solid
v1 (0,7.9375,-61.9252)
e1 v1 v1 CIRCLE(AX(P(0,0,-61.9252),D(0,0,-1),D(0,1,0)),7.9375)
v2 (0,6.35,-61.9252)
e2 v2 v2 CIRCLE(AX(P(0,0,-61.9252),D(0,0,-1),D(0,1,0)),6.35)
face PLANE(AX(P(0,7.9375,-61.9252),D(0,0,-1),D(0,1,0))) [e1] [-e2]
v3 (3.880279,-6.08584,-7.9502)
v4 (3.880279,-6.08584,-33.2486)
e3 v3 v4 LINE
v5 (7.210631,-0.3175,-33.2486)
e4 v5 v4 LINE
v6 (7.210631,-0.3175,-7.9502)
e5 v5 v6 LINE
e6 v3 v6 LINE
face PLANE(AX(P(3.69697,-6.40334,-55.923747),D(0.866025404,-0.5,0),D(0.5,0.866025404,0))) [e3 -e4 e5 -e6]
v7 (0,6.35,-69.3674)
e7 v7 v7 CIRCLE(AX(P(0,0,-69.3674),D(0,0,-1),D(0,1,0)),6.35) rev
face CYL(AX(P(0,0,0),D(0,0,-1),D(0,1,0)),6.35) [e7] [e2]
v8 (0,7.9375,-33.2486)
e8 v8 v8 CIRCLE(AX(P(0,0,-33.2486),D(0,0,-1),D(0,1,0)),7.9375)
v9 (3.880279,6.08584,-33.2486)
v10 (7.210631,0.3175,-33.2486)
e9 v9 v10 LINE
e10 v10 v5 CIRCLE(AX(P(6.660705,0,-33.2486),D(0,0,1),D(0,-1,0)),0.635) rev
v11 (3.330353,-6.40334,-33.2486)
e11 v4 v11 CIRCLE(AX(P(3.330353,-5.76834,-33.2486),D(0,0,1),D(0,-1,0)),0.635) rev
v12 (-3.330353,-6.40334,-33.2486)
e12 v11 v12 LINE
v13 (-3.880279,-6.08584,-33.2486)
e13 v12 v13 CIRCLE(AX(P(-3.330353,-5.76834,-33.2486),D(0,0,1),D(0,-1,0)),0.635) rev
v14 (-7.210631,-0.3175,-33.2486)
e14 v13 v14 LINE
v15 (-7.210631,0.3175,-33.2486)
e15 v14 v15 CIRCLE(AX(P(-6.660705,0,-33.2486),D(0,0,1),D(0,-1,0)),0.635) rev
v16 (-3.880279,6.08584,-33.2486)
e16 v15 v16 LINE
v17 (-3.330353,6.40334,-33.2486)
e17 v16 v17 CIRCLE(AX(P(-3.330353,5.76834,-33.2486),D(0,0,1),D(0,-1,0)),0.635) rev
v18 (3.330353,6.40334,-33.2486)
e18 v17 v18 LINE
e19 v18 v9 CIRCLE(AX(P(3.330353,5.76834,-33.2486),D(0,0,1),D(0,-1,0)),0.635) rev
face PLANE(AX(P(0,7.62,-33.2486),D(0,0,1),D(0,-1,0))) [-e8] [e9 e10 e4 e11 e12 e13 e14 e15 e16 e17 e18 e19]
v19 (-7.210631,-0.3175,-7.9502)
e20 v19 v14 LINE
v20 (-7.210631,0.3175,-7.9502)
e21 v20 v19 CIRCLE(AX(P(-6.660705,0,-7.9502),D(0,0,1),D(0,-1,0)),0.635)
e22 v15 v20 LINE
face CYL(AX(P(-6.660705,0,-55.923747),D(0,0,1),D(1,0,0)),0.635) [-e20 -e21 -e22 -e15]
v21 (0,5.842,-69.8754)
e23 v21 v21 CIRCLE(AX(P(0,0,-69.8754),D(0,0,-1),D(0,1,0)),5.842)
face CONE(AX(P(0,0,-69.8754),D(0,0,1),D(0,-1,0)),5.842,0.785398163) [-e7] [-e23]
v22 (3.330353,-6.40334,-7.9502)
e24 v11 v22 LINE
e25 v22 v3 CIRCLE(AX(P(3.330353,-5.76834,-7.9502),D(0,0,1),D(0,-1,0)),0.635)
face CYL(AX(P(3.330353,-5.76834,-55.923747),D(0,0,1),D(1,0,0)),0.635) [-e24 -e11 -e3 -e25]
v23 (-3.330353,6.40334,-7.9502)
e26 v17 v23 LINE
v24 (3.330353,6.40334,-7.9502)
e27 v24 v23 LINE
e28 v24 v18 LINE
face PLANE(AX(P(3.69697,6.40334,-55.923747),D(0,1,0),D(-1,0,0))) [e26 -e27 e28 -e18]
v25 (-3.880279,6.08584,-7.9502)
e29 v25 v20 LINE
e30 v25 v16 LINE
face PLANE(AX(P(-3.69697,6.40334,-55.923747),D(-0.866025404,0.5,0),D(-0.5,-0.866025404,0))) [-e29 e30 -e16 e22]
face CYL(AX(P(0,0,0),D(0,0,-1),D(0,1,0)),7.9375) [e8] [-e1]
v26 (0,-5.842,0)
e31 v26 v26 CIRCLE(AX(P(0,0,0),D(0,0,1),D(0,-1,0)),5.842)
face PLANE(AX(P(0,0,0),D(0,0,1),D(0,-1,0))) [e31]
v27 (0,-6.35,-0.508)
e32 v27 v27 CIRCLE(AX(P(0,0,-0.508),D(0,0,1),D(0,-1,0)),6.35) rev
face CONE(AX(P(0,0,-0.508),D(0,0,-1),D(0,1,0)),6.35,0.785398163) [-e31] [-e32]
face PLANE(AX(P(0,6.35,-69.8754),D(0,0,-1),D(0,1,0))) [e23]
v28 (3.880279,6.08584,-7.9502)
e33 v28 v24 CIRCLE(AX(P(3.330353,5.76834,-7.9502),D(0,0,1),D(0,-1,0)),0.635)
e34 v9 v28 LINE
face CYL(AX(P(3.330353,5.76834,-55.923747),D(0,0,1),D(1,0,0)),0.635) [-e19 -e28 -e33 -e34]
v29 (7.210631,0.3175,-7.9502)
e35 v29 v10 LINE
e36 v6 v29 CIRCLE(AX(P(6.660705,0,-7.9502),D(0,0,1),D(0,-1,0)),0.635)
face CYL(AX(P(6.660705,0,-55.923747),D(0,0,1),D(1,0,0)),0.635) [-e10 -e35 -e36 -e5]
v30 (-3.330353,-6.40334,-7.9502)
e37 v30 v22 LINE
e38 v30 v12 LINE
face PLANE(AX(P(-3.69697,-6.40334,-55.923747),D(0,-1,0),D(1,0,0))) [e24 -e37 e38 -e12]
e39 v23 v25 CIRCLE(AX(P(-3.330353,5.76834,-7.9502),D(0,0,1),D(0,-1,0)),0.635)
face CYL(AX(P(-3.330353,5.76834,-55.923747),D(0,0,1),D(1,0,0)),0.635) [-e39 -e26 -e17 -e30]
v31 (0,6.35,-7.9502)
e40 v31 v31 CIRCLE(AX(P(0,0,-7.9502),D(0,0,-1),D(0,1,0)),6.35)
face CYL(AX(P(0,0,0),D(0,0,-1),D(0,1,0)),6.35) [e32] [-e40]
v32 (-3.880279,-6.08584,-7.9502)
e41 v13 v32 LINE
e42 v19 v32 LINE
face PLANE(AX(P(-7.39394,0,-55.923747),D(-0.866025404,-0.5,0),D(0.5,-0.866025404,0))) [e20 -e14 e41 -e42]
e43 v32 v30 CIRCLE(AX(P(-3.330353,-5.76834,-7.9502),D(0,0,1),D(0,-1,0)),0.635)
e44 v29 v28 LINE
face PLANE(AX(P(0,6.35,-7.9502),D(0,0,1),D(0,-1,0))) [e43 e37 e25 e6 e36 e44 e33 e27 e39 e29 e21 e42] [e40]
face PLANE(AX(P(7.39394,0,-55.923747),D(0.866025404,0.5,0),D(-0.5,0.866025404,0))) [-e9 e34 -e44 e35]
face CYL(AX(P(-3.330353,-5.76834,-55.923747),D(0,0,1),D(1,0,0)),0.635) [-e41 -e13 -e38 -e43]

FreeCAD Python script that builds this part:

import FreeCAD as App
import Part
import Sketcher
from FreeCAD import Vector
Q = App.Units.Quantity


def edges_at(feature, points):
    """Names of the edges that pass closest to the given points."""
    edges = feature.Shape.Edges
    near = lambda p: min(range(len(edges)), key=lambda i: edges[i].distToShape(Part.Vertex(*p))[0])
    return sorted({f"Edge{near(p) + 1}" for p in points})


def add_polygon(sketch, points):
    """Adds a closed chain of lines whose ends are joined by coincident constraints."""
    first, n = sketch.GeometryCount, len(points)
    for a, b in zip(points, points[1:] + points[:1]):
        sketch.addGeometry(Part.LineSegment(App.Vector(*a, 0), App.Vector(*b, 0)), False)
    for i in range(n):
        sketch.addConstraint(Sketcher.Constraint("Coincident", first + i, 2, first + (i + 1) % n, 1))

doc = App.newDocument("Part")
body = doc.addObject("PartDesign::Body", "Body")

sketch1 = body.newObject("Sketcher::SketchObject", "Sketch")
sketch1.AttachmentSupport = (doc.getObject("YZ_Plane"), [""])
sketch1.MapMode = "FlatFace"
add_polygon(sketch1, [(6.35, 0), (0, 0), (0, -69.88), (6.35, -69.88), (6.35, -61.93), (7.94, -61.93), (7.94, -33.25), (7.62, -33.25), (7.62, -7.95), (6.35, -7.95)])
sketch1.addConstraint([
    Sketcher.Constraint("Horizontal", 0),
    Sketcher.Constraint("Vertical", 1),
    Sketcher.Constraint("Horizontal", 2),
    Sketcher.Constraint("Vertical", 3),
    Sketcher.Constraint("Horizontal", 4),
    Sketcher.Constraint("Vertical", 5),
    Sketcher.Constraint("Horizontal", 6),
    Sketcher.Constraint("Vertical", 7),
    Sketcher.Constraint("Horizontal", 8),
    Sketcher.Constraint("Vertical", 9),
    Sketcher.Constraint("Coincident", 0, 2, -1, 1),
    Sketcher.Constraint("Vertical", 3, 2, 8, 2),
    Sketcher.Constraint("Equal", 3, 9),
    Sketcher.Constraint("DistanceX", 0, 2, 0, 1, Q("0.25 in")),
    Sketcher.Constraint("DistanceX", 8, 2, 8, 1, Q("0.05 in")),
    Sketcher.Constraint("DistanceX", 4, 1, 4, 2, Q("0.0625 in")),
    Sketcher.Constraint("DistanceY", 1, 2, 1, 1, Q("2.751 in")),
    Sketcher.Constraint("DistanceY", 3, 1, 3, 2, Q("0.313 in")),
    Sketcher.Constraint("DistanceY", 5, 1, 5, 2, Q("1.129 in")),
])
revolution = body.newObject("PartDesign::Revolution", "Revolution")
revolution.Profile = sketch1
revolution.ReferenceAxis = (sketch1, ["V_Axis"])
revolution.Angle = 360

sketch2 = body.newObject("Sketcher::SketchObject", "Sketch001")
sketch2.AttachmentSupport = (doc.getObject("XY_Plane"), [""])
sketch2.MapMode = "FlatFace"
sketch2.AttachmentOffset = App.Placement(Vector(0, 0, -0.313 * 25.4), App.Rotation())
add_polygon(sketch2, [(-16, 16), (-16, -16), (16, -16), (16, 16)])
add_polygon(sketch2, [(-4, 6), (4, 6), (7, 0), (4, -6), (-4, -6), (-7, 0)])
sketch2.addConstraint([
    Sketcher.Constraint("Vertical", 0),
    Sketcher.Constraint("Horizontal", 1),
    Sketcher.Constraint("Vertical", 2),
    Sketcher.Constraint("Horizontal", 3),
    Sketcher.Constraint("Horizontal", 4),
    Sketcher.Constraint("Horizontal", 7),
    Sketcher.Constraint("Symmetric", 4, 2, 7, 2, -1, 1),
    Sketcher.Constraint("Symmetric", 5, 2, 8, 2, -1, 1),
    Sketcher.Constraint("PointOnObject", 5, 2, -1),
    Sketcher.Constraint("Parallel", 6, 9),
    Sketcher.Constraint("Vertical", 4, 2, 6, 2),
    Sketcher.Constraint("Angle", 5, Q("-60 deg")),
    Sketcher.Constraint("DistanceX", 4, 1, 4, 2, Q("0.2911 in")),
    Sketcher.Constraint("Distance", 5, Q("0.2911 in")),
    Sketcher.Constraint("DistanceX", 1, 1, 1, 2, Q("32.552 mm")),
    Sketcher.Constraint("DistanceY", 0, 2, 0, 1, Q("32.553 mm")),
    Sketcher.Constraint("DistanceX", 0, 2, -1, 1, Q("16.276 mm")),
    Sketcher.Constraint("DistanceY", 0, 2, -1, 1, Q("16.276 mm")),
])
pocket1 = body.newObject("PartDesign::Pocket", "Pocket")
pocket1.Profile = sketch2
pocket1.Length = Q("0.996 in")
doc.recompute()

chamfer = body.newObject("PartDesign::Chamfer", "Chamfer")
chamfer.Base = (pocket1, edges_at(pocket1, [(0, -6.35, 0), (0, -6.35, -69.875)]))
chamfer.Size = Q("0.02 in")
doc.recompute()

fillet = body.newObject("PartDesign::Fillet", "Fillet")
fillet.Base = (chamfer, edges_at(chamfer, [
    (3.697, 6.403, -20.599),
    (-3.697, 6.403, -20.599),
    (-7.394, 0, -20.599),
    (-3.697, -6.403, -20.599),
    (3.697, -6.403, -20.599),
    (7.394, 0, -20.599),
]))
fillet.Radius = Q("0.025 in")

doc.recompute()
